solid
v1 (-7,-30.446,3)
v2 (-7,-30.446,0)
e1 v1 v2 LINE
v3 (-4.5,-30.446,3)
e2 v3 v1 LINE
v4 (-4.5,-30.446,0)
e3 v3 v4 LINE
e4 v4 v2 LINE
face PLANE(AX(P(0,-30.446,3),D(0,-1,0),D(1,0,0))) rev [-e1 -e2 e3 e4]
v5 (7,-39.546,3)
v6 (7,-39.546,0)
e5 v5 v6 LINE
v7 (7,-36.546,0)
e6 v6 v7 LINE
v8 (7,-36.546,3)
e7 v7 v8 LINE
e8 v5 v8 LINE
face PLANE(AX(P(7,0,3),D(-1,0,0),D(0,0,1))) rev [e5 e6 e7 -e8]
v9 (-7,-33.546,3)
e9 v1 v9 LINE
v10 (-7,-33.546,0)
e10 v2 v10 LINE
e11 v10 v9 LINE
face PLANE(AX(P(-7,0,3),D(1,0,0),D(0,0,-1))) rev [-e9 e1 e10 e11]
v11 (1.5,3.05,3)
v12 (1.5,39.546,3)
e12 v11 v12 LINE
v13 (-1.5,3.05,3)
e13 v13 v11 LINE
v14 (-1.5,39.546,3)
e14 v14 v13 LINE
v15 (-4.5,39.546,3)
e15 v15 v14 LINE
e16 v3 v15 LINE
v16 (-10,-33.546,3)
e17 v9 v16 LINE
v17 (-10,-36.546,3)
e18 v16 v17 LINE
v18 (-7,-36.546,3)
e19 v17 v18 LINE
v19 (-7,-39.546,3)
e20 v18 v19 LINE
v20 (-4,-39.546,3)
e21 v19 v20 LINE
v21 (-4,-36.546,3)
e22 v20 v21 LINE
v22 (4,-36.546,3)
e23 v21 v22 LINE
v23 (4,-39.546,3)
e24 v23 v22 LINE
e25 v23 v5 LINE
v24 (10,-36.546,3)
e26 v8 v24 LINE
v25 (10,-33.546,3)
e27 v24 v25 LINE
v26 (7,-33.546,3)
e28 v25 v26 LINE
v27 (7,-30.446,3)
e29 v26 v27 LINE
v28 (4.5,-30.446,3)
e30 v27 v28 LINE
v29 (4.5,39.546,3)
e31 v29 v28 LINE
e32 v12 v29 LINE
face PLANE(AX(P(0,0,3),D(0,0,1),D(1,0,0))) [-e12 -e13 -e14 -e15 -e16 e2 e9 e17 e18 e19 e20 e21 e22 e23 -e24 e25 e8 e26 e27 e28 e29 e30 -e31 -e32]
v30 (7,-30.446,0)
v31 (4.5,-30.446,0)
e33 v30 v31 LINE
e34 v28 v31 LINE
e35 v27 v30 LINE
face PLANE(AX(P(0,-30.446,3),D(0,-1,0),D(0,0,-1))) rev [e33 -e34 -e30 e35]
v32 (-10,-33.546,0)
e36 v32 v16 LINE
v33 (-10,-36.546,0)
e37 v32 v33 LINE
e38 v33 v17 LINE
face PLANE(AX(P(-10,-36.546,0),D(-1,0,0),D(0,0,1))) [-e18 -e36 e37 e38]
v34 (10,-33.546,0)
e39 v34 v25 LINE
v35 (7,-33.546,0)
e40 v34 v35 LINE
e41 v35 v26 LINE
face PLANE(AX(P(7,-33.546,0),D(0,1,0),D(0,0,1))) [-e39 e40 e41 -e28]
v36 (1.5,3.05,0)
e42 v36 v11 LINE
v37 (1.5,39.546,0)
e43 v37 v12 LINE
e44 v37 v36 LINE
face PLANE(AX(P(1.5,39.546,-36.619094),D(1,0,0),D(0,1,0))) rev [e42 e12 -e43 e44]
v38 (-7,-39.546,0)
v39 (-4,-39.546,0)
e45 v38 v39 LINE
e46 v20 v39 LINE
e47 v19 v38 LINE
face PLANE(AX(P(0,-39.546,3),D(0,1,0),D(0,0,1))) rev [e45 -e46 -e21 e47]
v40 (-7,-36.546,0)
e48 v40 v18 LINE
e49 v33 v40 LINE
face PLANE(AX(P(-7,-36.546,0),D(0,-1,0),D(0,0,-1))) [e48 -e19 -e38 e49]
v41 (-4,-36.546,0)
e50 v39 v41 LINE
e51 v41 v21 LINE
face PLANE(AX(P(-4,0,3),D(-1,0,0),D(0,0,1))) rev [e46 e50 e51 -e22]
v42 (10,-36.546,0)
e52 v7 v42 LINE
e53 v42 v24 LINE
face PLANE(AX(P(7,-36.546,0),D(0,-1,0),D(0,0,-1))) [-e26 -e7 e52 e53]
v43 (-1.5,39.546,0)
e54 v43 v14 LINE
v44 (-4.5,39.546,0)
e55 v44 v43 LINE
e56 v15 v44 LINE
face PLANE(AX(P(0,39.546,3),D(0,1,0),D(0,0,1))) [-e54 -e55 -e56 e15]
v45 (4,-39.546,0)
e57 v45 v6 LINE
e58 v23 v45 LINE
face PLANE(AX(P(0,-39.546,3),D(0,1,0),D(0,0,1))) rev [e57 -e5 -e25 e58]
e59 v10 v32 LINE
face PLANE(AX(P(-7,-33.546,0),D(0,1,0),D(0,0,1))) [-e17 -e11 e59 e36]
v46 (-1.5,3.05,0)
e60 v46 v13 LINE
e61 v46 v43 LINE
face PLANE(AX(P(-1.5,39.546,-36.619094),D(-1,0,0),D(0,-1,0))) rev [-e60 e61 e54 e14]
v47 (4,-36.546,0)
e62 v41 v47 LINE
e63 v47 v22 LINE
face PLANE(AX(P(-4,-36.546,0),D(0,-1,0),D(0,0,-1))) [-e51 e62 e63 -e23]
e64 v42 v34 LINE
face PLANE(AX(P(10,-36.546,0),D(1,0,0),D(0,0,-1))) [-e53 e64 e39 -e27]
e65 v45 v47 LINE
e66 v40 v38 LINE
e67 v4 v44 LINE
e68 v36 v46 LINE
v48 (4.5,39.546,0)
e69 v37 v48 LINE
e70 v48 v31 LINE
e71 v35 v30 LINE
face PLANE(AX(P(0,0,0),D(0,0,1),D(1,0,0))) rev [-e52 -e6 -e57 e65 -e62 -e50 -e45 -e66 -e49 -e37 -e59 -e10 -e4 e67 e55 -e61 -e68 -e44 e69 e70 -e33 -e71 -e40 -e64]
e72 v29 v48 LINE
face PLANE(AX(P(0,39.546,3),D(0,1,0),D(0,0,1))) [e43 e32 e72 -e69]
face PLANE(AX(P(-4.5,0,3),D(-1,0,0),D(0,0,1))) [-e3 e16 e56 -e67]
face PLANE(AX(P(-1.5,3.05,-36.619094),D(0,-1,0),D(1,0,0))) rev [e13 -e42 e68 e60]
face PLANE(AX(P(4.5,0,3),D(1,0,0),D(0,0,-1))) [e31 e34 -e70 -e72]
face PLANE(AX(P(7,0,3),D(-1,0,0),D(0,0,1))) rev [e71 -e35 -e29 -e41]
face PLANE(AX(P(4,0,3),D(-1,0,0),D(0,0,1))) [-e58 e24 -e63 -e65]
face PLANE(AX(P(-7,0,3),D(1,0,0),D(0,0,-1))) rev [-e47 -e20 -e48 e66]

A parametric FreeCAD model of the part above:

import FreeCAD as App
import Part
import Sketcher

V = App.Vector


def add_polygon(sketch, points):
    """Adds a closed chain of lines whose ends are joined by coincident constraints."""
    first, n = sketch.GeometryCount, len(points)
    for a, b in zip(points, points[1:] + points[:1]):
        sketch.addGeometry(Part.LineSegment(App.Vector(*a, 0), App.Vector(*b, 0)), False)
    for i in range(n):
        sketch.addConstraint(Sketcher.Constraint("Coincident", first + i, 2, first + (i + 1) % n, 1))

doc = App.newDocument("Part")
body = doc.addObject("PartDesign::Body", "Body")

sketch1 = body.newObject("Sketcher::SketchObject", "Sketch")
sketch1.AttachmentSupport = (doc.getObject("XY_Plane"), [""])
sketch1.MapMode = "FlatFace"
add_polygon(sketch1, [(4.5, 39.546), (-4.5, 39.546), (-4.5, -30.446), (-7, -30.446), (-7, -39.546), (-4, -39.546), (-4, -33.446), (4, -33.446), (4, -39.546), (7, -39.546), (7, -30.446), (4.5, -30.446)])
sketch1.addConstraint([
    Sketcher.Constraint("Horizontal", 0),
    Sketcher.Constraint("Vertical", 1),
    Sketcher.Constraint("Horizontal", 2),
    Sketcher.Constraint("Vertical", 3),
    Sketcher.Constraint("Horizontal", 4),
    Sketcher.Constraint("Vertical", 5),
    Sketcher.Constraint("Horizontal", 6),
    Sketcher.Constraint("Vertical", 7),
    Sketcher.Constraint("Horizontal", 8),
    Sketcher.Constraint("Vertical", 9),
    Sketcher.Constraint("Horizontal", 10),
    Sketcher.Constraint("Vertical", 11),
    Sketcher.Constraint("Symmetric", 4, 2, 7, 2, -2),
    Sketcher.Constraint("Symmetric", 2, 2, 9, 2, -2),
    Sketcher.Constraint("Equal", 2, 10),
    Sketcher.Constraint("DistanceX", 0, 2, 0, 1, 9.0),
    Sketcher.Constraint("DistanceX", 4, 1, 4, 2, 3.0),
    Sketcher.Constraint("DistanceX", 6, 1, 6, 2, 8.0),
    Sketcher.Constraint("DistanceY", 3, 2, 3, 1, 9.1),
    Sketcher.Constraint("DistanceY", 5, 1, 5, 2, 6.1),
    Sketcher.Constraint("DistanceY", 1, 2, 1, 1, 69.992),
    Sketcher.Constraint("DistanceY", -1, 1, 0, 2, 39.546),
])
pad1 = body.newObject("PartDesign::Pad", "Pad")
pad1.Profile = sketch1
pad1.Length = 3

sketch2 = body.newObject("Sketcher::SketchObject", "Sketch001")
sketch2.AttachmentSupport = (doc.getObject("XY_Plane"), [""])
sketch2.MapMode = "FlatFace"
sketch2.AttachmentOffset = App.Placement(V(0, 0, 3), App.Rotation())
add_polygon(sketch2, [(-1.5, 39.546), (-1.5, 3.05), (1.5, 3.05), (1.5, 39.546)])
sketch2.addConstraint([
    Sketcher.Constraint("Vertical", 0),
    Sketcher.Constraint("Horizontal", 1),
    Sketcher.Constraint("Vertical", 2),
    Sketcher.Constraint("Horizontal", 3),
    Sketcher.Constraint("DistanceX", 1, 1, 1, 2, 3.0),
    Sketcher.Constraint("DistanceX", 0, 2, -1, 1, 1.5),
    Sketcher.Constraint("DistanceY", 0, 2, 0, 1, 36.496),
    Sketcher.Constraint("DistanceY", -1, 1, 0, 2, 3.05),
])
pocket1 = body.newObject("PartDesign::Pocket", "Pocket")
pocket1.Profile = sketch2
pocket1.Length = 3

sketch3 = body.newObject("Sketcher::SketchObject", "Sketch002")
sketch3.AttachmentSupport = (doc.getObject("XY_Plane"), [""])
sketch3.MapMode = "FlatFace"
sketch3.AttachmentOffset = App.Placement(V(0, 0, 3), App.Rotation())
add_polygon(sketch3, [(-10, -33.546), (-10, -36.546), (-7, -36.546), (-7, -33.546)])
add_polygon(sketch3, [(7, -33.546), (7, -36.546), (10, -36.546), (10, -33.546)])
sketch3.addConstraint([
    Sketcher.Constraint("Vertical", 0),
    Sketcher.Constraint("Horizontal", 1),
    Sketcher.Constraint("Vertical", 2),
    Sketcher.Constraint("Horizontal", 3),
    Sketcher.Constraint("Vertical", 4),
    Sketcher.Constraint("Horizontal", 5),
    Sketcher.Constraint("Vertical", 6),
    Sketcher.Constraint("Horizontal", 7),
    Sketcher.Constraint("Symmetric", 1, 2, 4, 2, -2),
    Sketcher.Constraint("Symmetric", 3, 2, 6, 2, -2),
    Sketcher.Constraint("Equal", 7, 0),
    Sketcher.Constraint("DistanceX", 1, 1, 1, 2, 3.0),
    Sketcher.Constraint("DistanceX", 0, 2, -1, 1, 10.0),
    Sketcher.Constraint("DistanceY", 0, 2, -1, 1, 36.546),
])
pad2 = body.newObject("PartDesign::Pad", "Pad001")
pad2.Profile = sketch3
pad2.Length = 3
pad2.Reversed = True

sketch4 = body.newObject("Sketcher::SketchObject", "Sketch003")
sketch4.AttachmentSupport = (doc.getObject("XY_Plane"), [""])
sketch4.MapMode = "FlatFace"
sketch4.AttachmentOffset = App.Placement(V(0, 0, 3), App.Rotation())
add_polygon(sketch4, [(-4, -33.446), (-4, -36.546), (4, -36.546), (4, -33.446)])
sketch4.addConstraint([
    Sketcher.Constraint("Vertical", 0),
    Sketcher.Constraint("Horizontal", 1),
    Sketcher.Constraint("Vertical", 2),
    Sketcher.Constraint("Horizontal", 3),
    Sketcher.Constraint("DistanceX", 1, 1, 1, 2, 8.0),
    Sketcher.Constraint("DistanceY", 0, 2, 0, 1, 3.1),
    Sketcher.Constraint("DistanceX", 0, 2, -1, 1, 4.0),
    Sketcher.Constraint("DistanceY", 0, 2, -1, 1, 36.546),
])
pad3 = body.newObject("PartDesign::Pad", "Pad002")
pad3.Profile = sketch4
pad3.Length = 3
pad3.Reversed = True

doc.recompute()
